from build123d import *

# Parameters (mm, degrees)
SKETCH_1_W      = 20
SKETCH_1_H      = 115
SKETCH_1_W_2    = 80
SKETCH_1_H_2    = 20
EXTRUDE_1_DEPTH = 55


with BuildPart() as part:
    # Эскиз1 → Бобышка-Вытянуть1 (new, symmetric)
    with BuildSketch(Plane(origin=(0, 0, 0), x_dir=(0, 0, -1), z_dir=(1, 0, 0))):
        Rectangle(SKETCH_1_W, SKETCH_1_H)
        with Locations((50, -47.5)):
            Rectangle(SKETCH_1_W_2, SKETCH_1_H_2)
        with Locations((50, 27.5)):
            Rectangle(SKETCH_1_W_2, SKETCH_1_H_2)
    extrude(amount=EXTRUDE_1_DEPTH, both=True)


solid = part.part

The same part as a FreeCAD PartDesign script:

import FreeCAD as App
import Part
import Sketcher


def add_polygon(sketch, points):
    """Adds a closed chain of lines whose ends are joined by coincident constraints."""
    first, n = sketch.GeometryCount, len(points)
    for a, b in zip(points, points[1:] + points[:1]):
        sketch.addGeometry(Part.LineSegment(App.Vector(*a, 0), App.Vector(*b, 0)), False)
    for i in range(n):
        sketch.addConstraint(Sketcher.Constraint("Coincident", first + i, 2, first + (i + 1) % n, 1))

doc = App.newDocument("Part")
body = doc.addObject("PartDesign::Body", "Body")

# Sketch on YZ plane
sketch1 = body.newObject("Sketcher::SketchObject", "Sketch")
sketch1.AttachmentSupport = (doc.getObject("YZ_Plane"), [""])
sketch1.MapMode = "FlatFace"
add_polygon(sketch1, [(58, 10), (-58, 10), (-58, -90), (-38, -90), (-38, -10), (18, -10), (18, -90), (38, -90), (38, -10), (58, -10)])  # lines 0-9
sketch1.addConstraint([
    Sketcher.Constraint("Horizontal", 0),
    Sketcher.Constraint("Vertical", 1),
    Sketcher.Constraint("Horizontal", 2),
    Sketcher.Constraint("Vertical", 3),
    Sketcher.Constraint("Horizontal", 4),
    Sketcher.Constraint("Vertical", 5),
    Sketcher.Constraint("Horizontal", 6),
    Sketcher.Constraint("Vertical", 7),
    Sketcher.Constraint("Horizontal", 8),
    Sketcher.Constraint("Vertical", 9),
    Sketcher.Constraint("Symmetric", 0, 2, 8, 2, -1, 1),
    Sketcher.Constraint("Symmetric", 2, 2, 6, 2, -2),
    Sketcher.Constraint("Horizontal", 4, 2, 7, 2),
    Sketcher.Constraint("Equal", 2, 6),
    Sketcher.Constraint("Equal", 8, 9),
    Sketcher.Constraint("DistanceX", 0, 2, 0, 1, 115.0),
    Sketcher.Constraint("DistanceX", 2, 1, 2, 2, 20.0),
    Sketcher.Constraint("DistanceY", 1, 2, 1, 1, 100.0),
])
pad1 = body.newObject("PartDesign::Pad", "Pad")
pad1.Profile = sketch1
pad1.Length = 110
pad1.Midplane = True

doc.recompute()
